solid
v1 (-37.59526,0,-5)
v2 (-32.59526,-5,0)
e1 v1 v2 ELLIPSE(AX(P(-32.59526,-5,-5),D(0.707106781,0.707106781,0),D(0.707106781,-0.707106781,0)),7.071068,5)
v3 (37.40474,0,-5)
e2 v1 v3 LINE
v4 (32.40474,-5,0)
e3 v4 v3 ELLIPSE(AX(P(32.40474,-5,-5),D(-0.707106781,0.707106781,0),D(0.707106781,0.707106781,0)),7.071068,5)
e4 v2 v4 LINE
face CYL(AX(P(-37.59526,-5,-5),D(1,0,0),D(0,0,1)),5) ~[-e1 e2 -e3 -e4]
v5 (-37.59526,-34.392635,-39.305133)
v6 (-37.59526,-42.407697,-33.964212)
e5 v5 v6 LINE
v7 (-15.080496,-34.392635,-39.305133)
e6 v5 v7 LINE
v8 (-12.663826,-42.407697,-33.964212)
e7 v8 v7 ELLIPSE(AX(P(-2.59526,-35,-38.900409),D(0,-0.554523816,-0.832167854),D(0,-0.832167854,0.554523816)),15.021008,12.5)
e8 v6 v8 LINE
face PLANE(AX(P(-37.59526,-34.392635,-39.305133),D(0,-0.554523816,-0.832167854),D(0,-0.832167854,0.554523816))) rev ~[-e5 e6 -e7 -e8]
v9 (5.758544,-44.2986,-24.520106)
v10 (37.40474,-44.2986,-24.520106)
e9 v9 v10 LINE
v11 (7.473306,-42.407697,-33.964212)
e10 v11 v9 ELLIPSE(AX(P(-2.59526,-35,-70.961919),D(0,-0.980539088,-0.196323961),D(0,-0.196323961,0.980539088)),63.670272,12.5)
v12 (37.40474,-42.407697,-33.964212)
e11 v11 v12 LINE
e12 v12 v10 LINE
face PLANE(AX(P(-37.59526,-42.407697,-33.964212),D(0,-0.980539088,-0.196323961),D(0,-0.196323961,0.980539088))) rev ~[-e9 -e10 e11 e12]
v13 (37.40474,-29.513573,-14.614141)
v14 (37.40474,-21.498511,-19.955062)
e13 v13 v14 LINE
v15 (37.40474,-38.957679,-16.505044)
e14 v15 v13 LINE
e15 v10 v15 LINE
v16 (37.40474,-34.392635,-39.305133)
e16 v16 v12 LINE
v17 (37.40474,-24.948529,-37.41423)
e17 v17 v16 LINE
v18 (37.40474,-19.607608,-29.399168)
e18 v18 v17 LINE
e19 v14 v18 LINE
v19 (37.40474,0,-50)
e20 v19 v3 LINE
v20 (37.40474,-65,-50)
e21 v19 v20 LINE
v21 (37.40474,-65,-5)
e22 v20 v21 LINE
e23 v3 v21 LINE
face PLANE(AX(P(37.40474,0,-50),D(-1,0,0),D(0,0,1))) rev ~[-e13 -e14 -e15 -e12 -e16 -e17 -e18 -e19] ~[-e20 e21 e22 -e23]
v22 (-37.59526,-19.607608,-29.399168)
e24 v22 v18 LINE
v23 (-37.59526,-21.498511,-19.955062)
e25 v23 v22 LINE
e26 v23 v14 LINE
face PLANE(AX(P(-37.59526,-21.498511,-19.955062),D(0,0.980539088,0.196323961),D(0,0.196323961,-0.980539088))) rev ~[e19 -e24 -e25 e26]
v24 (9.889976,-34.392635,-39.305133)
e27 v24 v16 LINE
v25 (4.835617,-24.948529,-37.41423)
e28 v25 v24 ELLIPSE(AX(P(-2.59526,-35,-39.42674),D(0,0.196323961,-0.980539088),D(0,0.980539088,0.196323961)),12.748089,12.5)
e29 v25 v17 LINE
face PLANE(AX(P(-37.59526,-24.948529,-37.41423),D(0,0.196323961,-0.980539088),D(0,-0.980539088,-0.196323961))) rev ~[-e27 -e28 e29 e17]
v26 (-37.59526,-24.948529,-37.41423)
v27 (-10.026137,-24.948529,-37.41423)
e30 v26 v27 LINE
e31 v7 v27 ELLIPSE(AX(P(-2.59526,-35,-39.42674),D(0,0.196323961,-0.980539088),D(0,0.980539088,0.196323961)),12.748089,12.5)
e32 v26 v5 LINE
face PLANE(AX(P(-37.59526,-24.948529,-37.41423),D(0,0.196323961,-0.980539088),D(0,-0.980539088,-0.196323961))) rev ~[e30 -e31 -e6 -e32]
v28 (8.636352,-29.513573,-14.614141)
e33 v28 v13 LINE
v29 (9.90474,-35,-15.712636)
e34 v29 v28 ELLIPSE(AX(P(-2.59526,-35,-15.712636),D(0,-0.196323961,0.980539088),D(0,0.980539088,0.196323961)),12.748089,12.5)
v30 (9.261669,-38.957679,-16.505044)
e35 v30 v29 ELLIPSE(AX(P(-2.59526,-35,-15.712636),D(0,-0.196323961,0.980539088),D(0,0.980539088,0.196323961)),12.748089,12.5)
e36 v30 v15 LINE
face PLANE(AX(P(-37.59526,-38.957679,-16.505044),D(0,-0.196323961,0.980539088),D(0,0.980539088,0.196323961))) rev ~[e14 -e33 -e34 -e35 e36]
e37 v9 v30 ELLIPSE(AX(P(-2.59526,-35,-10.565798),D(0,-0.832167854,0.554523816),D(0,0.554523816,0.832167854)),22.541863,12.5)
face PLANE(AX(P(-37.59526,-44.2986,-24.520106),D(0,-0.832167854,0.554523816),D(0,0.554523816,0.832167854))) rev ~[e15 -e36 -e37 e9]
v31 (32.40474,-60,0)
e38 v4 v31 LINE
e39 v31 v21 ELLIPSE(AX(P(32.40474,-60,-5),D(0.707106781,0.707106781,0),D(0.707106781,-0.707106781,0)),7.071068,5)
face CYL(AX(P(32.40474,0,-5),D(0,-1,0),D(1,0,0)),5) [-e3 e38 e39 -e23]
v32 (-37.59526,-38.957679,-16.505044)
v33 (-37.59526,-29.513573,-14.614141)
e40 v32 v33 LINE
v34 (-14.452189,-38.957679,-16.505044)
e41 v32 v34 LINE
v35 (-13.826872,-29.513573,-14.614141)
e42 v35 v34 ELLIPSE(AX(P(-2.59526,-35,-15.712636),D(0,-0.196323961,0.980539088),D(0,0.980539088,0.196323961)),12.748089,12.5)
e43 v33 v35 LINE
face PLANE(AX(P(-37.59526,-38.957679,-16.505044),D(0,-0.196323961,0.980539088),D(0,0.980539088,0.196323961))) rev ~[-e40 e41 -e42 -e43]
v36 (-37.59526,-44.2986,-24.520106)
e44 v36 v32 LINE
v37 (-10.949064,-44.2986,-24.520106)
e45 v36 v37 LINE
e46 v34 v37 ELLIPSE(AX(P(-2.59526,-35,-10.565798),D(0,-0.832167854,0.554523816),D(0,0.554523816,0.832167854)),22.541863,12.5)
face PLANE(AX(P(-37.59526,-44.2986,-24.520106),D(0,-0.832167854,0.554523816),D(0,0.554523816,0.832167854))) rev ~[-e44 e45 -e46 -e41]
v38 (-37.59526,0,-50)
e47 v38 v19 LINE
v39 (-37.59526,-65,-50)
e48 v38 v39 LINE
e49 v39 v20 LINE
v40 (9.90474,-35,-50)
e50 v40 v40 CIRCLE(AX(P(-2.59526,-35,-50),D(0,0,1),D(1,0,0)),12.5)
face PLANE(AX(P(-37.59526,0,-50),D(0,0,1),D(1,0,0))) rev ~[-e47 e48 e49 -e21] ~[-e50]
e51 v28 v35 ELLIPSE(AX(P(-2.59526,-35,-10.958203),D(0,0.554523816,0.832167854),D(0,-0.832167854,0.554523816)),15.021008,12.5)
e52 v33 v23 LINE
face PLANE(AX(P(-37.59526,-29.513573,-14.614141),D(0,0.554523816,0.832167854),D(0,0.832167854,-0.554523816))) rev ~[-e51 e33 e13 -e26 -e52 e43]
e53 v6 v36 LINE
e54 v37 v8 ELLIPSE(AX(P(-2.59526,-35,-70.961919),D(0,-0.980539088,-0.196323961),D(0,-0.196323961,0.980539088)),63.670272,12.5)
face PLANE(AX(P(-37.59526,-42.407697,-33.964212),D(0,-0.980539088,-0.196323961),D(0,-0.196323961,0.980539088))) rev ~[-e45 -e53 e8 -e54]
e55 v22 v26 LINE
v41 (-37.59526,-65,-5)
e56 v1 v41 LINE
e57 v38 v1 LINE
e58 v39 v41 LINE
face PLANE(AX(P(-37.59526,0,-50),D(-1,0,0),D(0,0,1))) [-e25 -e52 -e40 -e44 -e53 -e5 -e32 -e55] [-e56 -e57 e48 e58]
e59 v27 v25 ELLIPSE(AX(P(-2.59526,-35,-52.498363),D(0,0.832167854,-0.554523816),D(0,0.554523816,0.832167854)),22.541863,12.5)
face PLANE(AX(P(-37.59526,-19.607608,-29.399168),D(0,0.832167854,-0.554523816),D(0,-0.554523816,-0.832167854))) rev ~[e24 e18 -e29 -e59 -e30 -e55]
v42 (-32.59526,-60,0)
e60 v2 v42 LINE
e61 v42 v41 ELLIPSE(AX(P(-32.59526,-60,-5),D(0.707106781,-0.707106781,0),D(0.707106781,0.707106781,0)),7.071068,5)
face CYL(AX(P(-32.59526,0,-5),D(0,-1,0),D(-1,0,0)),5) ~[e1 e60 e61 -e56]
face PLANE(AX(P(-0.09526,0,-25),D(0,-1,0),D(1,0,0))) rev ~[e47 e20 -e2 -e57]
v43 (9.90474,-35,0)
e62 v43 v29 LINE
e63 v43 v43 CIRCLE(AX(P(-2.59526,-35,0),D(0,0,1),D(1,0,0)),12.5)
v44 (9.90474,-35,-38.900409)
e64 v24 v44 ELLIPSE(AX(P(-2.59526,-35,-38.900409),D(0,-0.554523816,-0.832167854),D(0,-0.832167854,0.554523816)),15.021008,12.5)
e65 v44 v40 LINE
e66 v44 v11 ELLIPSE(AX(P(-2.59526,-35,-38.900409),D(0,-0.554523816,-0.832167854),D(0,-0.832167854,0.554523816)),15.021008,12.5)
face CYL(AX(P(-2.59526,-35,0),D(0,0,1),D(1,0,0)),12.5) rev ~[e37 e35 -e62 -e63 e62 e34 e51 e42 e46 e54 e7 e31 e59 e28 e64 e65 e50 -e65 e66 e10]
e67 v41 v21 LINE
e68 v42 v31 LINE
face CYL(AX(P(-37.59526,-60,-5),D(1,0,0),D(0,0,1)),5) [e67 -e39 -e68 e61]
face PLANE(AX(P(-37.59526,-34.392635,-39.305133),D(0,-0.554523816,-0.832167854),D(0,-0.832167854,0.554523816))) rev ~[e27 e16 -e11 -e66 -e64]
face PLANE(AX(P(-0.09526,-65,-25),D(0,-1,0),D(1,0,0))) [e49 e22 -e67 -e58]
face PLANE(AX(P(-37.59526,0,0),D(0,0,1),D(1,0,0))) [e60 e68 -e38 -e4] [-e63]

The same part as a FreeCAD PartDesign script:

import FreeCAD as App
import Part
import Sketcher
Q = App.Units.Quantity


def edges_at(feature, points):
    """Names of the edges that pass closest to the given points."""
    edges = feature.Shape.Edges
    near = lambda p: min(range(len(edges)), key=lambda i: edges[i].distToShape(Part.Vertex(*p))[0])
    return sorted({f"Edge{near(p) + 1}" for p in points})


def add_polygon(sketch, points):
    """Adds a closed chain of lines whose ends are joined by coincident constraints."""
    first, n = sketch.GeometryCount, len(points)
    for a, b in zip(points, points[1:] + points[:1]):
        sketch.addGeometry(Part.LineSegment(App.Vector(*a, 0), App.Vector(*b, 0)), False)
    for i in range(n):
        sketch.addConstraint(Sketcher.Constraint("Coincident", first + i, 2, first + (i + 1) % n, 1))

doc = App.newDocument("Part")
params = doc.addObject("Spreadsheet::Sheet", "Params")
for row, (alias, value) in enumerate([
    ("sketch1_width", "75 mm"),
    ("sketch1_height", "50 mm"),
    ("pad1_length", "65 mm"),
    ("fillet_radius", "5 mm"),
    ("sketch2_diameter", "25 mm"),
], start=1):
    params.set(f"A{row}", alias)
    params.set(f"B{row}", "=" + value)
    params.setAlias(f"B{row}", alias)

body = doc.addObject("PartDesign::Body", "Body")

# Sketch on XZ plane
sketch1 = body.newObject("Sketcher::SketchObject", "Sketch")
sketch1.AttachmentSupport = (doc.getObject("XZ_Plane"), [""])
sketch1.MapMode = "FlatFace"
add_polygon(sketch1, [(-37.59526, 0), (-37.59526, -50), (37.40474, -50), (37.40474, 0)])  # lines 0-3
sketch1.addConstraint([
    Sketcher.Constraint("Vertical", 0),
    Sketcher.Constraint("Horizontal", 1),
    Sketcher.Constraint("Vertical", 2),
    Sketcher.Constraint("Horizontal", 3),
    Sketcher.Constraint("PointOnObject", 2, 2, -1),
    Sketcher.Constraint("DistanceX", 1, 1, 1, 2, Q("75 mm")),
    Sketcher.Constraint("DistanceY", 0, 2, 0, 1, Q("50 mm")),
    Sketcher.Constraint("DistanceX", 0, 2, -1, 1, Q("37.59526 mm")),
])
sketch1.setExpression("Constraints[9]", "Params.sketch1_width")
sketch1.setExpression("Constraints[10]", "Params.sketch1_height")
pad1 = body.newObject("PartDesign::Pad", "Pad")
pad1.Profile = sketch1
pad1.setExpression("Length", "Params.pad1_length")
doc.recompute()

fillet = body.newObject("PartDesign::Fillet", "Fillet")
fillet.Base = (pad1, edges_at(pad1, [
    (-0.095, -65, 0),
    (-37.595, -32.5, 0),
    (-0.095, 0, 0),
    (37.405, -32.5, 0),
]))
fillet.setExpression("Radius", "Params.fillet_radius")

# Sketch on XY plane
sketch2 = body.newObject("Sketcher::SketchObject", "Sketch001")
sketch2.AttachmentSupport = (doc.getObject("XY_Plane"), [""])
sketch2.MapMode = "FlatFace"
sketch2.addGeometry(Part.Circle(App.Vector(-2.59526, -35, 0), App.Vector(0, 0, 1), 12.5), False)
sketch2.addConstraint([
    Sketcher.Constraint("Diameter", 0, Q("25 mm")),
    Sketcher.Constraint("DistanceY", 0, 3, -1, 1, Q("35 mm")),
    Sketcher.Constraint("DistanceX", 0, 3, -1, 1, Q("2.59526 mm")),
])
sketch2.setExpression("Constraints[0]", "Params.sketch2_diameter")
pocket1 = body.newObject("PartDesign::Pocket", "Pocket")
pocket1.Profile = sketch2
pocket1.Type = "ThroughAll"

# Sketch on YZ plane
sketch3 = body.newObject("Sketcher::SketchObject", "Sketch002")
sketch3.AttachmentSupport = (doc.getObject("YZ_Plane"), [""])
sketch3.MapMode = "FlatFace"
sketch3.AttachmentOffset = App.Placement(App.Vector(0, 0, -37.59526), App.Rotation())
add_polygon(sketch3, [(-34.392635, -39.305133), (-42.407697, -33.964212), (-44.2986, -24.520106), (-38.957679, -16.505044), (-29.513573, -14.614141), (-21.498511, -19.955062), (-19.607608, -29.399168), (-24.948529, -37.41423)])  # lines 0-7
sketch3.addConstraint([
    Sketcher.Constraint("Perpendicular", 0, 2),
    Sketcher.Constraint("Perpendicular", 1, 3),
    Sketcher.Constraint("Perpendicular", 2, 4),
    Sketcher.Constraint("Perpendicular", 3, 5),
    Sketcher.Constraint("Perpendicular", 4, 6),
    Sketcher.Constraint("Perpendicular", 5, 7),
    Sketcher.Constraint("Equal", 0, 1),
    Sketcher.Constraint("Equal", 1, 2),
    Sketcher.Constraint("Equal", 2, 3),
    Sketcher.Constraint("Equal", 3, 4),
    Sketcher.Constraint("Equal", 4, 5),
    Sketcher.Constraint("DistanceX", 1, 2, -1, 1, Q("44.2986 mm")),
    Sketcher.Constraint("DistanceX", 2, 2, -1, 1, Q("38.957679 mm")),
    Sketcher.Constraint("DistanceY", 3, 2, -1, 1, Q("14.614141 mm")),
    Sketcher.Constraint("DistanceX", 4, 2, -1, 1, Q("21.498511 mm")),
    Sketcher.Constraint("DistanceX", 6, 2, -1, 1, Q("24.948529 mm")),
])
pocket2 = body.newObject("PartDesign::Pocket", "Pocket001")
pocket2.Profile = sketch3
pocket2.Type = "ThroughAll"
pocket2.Reversed = True

doc.recompute()
